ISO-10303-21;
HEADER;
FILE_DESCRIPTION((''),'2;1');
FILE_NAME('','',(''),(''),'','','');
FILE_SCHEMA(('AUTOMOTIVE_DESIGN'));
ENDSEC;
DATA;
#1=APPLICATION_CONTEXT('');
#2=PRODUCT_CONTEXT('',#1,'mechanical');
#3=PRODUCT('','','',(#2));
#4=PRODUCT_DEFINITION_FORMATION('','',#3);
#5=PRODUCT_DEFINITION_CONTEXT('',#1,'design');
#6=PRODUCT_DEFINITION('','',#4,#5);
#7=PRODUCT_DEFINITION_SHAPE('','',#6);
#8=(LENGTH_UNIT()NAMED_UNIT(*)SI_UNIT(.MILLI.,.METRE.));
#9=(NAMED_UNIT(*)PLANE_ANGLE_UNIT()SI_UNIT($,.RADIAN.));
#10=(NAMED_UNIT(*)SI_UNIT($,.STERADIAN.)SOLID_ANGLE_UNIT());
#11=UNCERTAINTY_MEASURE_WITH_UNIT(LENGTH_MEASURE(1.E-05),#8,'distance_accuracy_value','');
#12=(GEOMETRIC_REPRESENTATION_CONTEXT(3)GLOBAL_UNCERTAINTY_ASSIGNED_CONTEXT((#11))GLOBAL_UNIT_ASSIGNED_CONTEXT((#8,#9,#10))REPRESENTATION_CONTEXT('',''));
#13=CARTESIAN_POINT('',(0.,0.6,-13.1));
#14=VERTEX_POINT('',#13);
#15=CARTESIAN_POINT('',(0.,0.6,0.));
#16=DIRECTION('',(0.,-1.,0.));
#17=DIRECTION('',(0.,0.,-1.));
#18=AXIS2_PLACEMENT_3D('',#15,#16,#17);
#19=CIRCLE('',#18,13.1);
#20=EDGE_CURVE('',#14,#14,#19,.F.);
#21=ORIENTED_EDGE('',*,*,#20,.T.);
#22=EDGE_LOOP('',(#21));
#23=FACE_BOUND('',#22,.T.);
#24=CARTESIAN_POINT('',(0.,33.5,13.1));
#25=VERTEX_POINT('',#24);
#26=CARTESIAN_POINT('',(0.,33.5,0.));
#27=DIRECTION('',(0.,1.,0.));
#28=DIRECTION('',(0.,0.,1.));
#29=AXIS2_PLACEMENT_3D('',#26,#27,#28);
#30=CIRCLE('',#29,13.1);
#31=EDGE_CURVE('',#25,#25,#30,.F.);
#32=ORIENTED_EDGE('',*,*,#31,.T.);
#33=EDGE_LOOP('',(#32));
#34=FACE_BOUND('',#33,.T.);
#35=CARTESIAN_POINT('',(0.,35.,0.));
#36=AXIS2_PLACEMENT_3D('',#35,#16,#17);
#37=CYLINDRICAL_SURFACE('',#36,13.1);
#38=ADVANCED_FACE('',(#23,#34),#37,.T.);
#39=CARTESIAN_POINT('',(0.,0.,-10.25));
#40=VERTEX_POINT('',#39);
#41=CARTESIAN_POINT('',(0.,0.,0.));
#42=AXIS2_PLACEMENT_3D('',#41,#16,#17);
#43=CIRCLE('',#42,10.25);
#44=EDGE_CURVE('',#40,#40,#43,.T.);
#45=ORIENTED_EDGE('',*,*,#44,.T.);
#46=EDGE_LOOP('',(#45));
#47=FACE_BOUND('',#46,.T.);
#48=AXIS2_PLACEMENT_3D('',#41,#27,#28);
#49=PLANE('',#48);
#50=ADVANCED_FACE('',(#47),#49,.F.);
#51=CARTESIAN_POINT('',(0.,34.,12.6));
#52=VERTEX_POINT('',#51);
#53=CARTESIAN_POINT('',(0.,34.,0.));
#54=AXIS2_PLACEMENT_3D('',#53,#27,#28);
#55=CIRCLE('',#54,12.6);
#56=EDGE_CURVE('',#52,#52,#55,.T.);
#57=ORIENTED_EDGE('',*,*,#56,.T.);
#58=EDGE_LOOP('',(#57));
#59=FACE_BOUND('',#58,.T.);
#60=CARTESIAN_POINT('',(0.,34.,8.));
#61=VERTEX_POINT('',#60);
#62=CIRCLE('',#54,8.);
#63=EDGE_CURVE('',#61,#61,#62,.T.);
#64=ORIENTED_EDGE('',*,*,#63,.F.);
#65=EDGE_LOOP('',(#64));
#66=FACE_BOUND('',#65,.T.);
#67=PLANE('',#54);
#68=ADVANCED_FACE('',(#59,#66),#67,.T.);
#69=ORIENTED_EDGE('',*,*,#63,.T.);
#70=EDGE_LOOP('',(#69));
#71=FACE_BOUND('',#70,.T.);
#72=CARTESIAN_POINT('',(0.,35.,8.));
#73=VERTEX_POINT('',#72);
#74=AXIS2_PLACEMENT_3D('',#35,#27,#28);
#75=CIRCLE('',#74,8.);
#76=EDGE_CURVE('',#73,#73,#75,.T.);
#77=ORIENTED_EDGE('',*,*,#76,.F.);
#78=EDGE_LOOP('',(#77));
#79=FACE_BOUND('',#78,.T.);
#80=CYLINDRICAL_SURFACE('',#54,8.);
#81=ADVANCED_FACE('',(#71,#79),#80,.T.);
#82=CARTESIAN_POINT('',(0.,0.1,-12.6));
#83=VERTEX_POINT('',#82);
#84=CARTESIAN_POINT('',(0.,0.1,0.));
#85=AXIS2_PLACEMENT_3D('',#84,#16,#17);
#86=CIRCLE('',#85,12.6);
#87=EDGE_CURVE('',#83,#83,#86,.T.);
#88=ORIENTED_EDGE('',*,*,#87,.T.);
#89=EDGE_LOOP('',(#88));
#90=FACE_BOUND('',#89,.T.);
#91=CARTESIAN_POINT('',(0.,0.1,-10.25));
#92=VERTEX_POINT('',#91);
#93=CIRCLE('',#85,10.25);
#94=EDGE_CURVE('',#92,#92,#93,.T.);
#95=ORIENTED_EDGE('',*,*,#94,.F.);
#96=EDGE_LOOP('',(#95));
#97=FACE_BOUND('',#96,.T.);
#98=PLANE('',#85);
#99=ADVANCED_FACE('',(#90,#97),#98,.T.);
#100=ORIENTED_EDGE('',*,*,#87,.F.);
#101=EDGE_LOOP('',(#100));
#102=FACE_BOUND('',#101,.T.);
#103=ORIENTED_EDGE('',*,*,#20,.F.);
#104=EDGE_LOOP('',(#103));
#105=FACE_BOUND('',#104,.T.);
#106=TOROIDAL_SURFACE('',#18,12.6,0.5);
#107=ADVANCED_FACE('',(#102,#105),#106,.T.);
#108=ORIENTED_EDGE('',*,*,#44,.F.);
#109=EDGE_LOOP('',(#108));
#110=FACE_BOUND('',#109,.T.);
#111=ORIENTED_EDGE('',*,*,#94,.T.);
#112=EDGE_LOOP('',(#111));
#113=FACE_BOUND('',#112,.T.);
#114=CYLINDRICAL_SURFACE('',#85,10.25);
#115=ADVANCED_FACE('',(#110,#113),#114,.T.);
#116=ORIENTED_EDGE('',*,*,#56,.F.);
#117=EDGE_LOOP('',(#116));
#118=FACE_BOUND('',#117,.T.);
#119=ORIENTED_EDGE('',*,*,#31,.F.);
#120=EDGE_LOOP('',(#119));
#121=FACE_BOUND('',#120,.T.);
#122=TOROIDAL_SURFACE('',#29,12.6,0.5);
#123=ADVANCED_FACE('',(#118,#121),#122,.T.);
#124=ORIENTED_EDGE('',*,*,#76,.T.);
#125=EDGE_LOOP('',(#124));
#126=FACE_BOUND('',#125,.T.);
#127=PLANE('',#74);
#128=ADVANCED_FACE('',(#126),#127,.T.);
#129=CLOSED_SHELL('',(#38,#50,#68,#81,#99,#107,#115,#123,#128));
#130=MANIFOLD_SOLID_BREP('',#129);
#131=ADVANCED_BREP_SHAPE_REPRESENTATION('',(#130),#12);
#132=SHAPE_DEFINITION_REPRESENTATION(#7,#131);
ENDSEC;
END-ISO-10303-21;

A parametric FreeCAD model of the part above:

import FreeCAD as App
import Part
import Sketcher

V = App.Vector
Q = App.Units.Quantity


def edges_at(feature, points):
    """Names of the edges that pass closest to the given points."""
    edges = feature.Shape.Edges
    near = lambda p: min(range(len(edges)), key=lambda i: edges[i].distToShape(Part.Vertex(*p))[0])
    return sorted({f"Edge{near(p) + 1}" for p in points})

doc = App.newDocument("Part")
params = doc.addObject("Spreadsheet::Sheet", "Params")
for row, (alias, value) in enumerate([
    ("sketch1_diameter", "26.2 mm"),
    ("pad1_length", "35 mm"),
    ("sketch2_diameter", "16 mm"),
    ("pocket1_length", "1 mm"),
    ("sketch3_diameter", "20.5 mm"),
    ("pocket2_length", "0.1 mm"),
    ("fillet_radius", "0.5 mm"),
], start=1):
    params.set(f"A{row}", alias)
    params.set(f"B{row}", "=" + value)
    params.setAlias(f"B{row}", alias)

body = doc.addObject("PartDesign::Body", "Body")

# Sketch on XZ plane
sketch1 = body.newObject("Sketcher::SketchObject", "Sketch")
sketch1.AttachmentSupport = (doc.getObject("XZ_Plane"), [""])
sketch1.MapMode = "FlatFace"
sketch1.addGeometry(Part.Circle(V(0, 0, 0), V(0, 0, 1), 13), False)
sketch1.addConstraint(Sketcher.Constraint("Coincident", 0, 3, -1, 1))
sketch1.addConstraint(Sketcher.Constraint("Diameter", 0, Q("26.2 mm")))
sketch1.setExpression("Constraints[1]", "Params.sketch1_diameter")
pad1 = body.newObject("PartDesign::Pad", "Pad")
pad1.Profile = sketch1
pad1.setExpression("Length", "Params.pad1_length")
pad1.Reversed = True

# Sketch on XZ plane
sketch2 = body.newObject("Sketcher::SketchObject", "Sketch001")
sketch2.AttachmentSupport = (doc.getObject("XZ_Plane"), [""])
sketch2.MapMode = "FlatFace"
sketch2.AttachmentOffset = App.Placement(V(0, 0, -35), App.Rotation())
sketch2.addGeometry(Part.Circle(V(0, 0, 0), V(0, 0, 1), 19), False)
sketch2.addGeometry(Part.Circle(V(0, 0, 0), V(0, 0, 1), 8), False)
sketch2.addConstraint(Sketcher.Constraint("Coincident", 0, 3, -1, 1))
sketch2.addConstraint(Sketcher.Constraint("Coincident", 1, 3, -1, 1))
sketch2.addConstraint(Sketcher.Constraint("Diameter", 1, Q("16 mm")))
sketch2.addConstraint(Sketcher.Constraint("Diameter", 0, Q("38.541307 mm")))
sketch2.setExpression("Constraints[2]", "Params.sketch2_diameter")
pocket1 = body.newObject("PartDesign::Pocket", "Pocket")
pocket1.Profile = sketch2
pocket1.setExpression("Length", "Params.pocket1_length")
pocket1.Reversed = True

# Sketch on XZ plane
sketch3 = body.newObject("Sketcher::SketchObject", "Sketch002")
sketch3.AttachmentSupport = (doc.getObject("XZ_Plane"), [""])
sketch3.MapMode = "FlatFace"
sketch3.addGeometry(Part.Circle(V(0, 0, 0), V(0, 0, 1), 18), False)
sketch3.addGeometry(Part.Circle(V(0, 0, 0), V(0, 0, 1), 10), False)
sketch3.addConstraint(Sketcher.Constraint("Coincident", 0, 3, -1, 1))
sketch3.addConstraint(Sketcher.Constraint("Coincident", 1, 3, -1, 1))
sketch3.addConstraint(Sketcher.Constraint("Diameter", 1, Q("20.5 mm")))
sketch3.addConstraint(Sketcher.Constraint("Diameter", 0, Q("35.102095 mm")))
sketch3.setExpression("Constraints[2]", "Params.sketch3_diameter")
pocket2 = body.newObject("PartDesign::Pocket", "Pocket001")
pocket2.Profile = sketch3
pocket2.setExpression("Length", "Params.pocket2_length")
doc.recompute()

fillet = body.newObject("PartDesign::Fillet", "Fillet")
fillet.Base = (pocket2, edges_at(pocket2, [(0, 0.1, -13.1), (0, 34, -13.1)]))
fillet.setExpression("Radius", "Params.fillet_radius")

doc.recompute()
